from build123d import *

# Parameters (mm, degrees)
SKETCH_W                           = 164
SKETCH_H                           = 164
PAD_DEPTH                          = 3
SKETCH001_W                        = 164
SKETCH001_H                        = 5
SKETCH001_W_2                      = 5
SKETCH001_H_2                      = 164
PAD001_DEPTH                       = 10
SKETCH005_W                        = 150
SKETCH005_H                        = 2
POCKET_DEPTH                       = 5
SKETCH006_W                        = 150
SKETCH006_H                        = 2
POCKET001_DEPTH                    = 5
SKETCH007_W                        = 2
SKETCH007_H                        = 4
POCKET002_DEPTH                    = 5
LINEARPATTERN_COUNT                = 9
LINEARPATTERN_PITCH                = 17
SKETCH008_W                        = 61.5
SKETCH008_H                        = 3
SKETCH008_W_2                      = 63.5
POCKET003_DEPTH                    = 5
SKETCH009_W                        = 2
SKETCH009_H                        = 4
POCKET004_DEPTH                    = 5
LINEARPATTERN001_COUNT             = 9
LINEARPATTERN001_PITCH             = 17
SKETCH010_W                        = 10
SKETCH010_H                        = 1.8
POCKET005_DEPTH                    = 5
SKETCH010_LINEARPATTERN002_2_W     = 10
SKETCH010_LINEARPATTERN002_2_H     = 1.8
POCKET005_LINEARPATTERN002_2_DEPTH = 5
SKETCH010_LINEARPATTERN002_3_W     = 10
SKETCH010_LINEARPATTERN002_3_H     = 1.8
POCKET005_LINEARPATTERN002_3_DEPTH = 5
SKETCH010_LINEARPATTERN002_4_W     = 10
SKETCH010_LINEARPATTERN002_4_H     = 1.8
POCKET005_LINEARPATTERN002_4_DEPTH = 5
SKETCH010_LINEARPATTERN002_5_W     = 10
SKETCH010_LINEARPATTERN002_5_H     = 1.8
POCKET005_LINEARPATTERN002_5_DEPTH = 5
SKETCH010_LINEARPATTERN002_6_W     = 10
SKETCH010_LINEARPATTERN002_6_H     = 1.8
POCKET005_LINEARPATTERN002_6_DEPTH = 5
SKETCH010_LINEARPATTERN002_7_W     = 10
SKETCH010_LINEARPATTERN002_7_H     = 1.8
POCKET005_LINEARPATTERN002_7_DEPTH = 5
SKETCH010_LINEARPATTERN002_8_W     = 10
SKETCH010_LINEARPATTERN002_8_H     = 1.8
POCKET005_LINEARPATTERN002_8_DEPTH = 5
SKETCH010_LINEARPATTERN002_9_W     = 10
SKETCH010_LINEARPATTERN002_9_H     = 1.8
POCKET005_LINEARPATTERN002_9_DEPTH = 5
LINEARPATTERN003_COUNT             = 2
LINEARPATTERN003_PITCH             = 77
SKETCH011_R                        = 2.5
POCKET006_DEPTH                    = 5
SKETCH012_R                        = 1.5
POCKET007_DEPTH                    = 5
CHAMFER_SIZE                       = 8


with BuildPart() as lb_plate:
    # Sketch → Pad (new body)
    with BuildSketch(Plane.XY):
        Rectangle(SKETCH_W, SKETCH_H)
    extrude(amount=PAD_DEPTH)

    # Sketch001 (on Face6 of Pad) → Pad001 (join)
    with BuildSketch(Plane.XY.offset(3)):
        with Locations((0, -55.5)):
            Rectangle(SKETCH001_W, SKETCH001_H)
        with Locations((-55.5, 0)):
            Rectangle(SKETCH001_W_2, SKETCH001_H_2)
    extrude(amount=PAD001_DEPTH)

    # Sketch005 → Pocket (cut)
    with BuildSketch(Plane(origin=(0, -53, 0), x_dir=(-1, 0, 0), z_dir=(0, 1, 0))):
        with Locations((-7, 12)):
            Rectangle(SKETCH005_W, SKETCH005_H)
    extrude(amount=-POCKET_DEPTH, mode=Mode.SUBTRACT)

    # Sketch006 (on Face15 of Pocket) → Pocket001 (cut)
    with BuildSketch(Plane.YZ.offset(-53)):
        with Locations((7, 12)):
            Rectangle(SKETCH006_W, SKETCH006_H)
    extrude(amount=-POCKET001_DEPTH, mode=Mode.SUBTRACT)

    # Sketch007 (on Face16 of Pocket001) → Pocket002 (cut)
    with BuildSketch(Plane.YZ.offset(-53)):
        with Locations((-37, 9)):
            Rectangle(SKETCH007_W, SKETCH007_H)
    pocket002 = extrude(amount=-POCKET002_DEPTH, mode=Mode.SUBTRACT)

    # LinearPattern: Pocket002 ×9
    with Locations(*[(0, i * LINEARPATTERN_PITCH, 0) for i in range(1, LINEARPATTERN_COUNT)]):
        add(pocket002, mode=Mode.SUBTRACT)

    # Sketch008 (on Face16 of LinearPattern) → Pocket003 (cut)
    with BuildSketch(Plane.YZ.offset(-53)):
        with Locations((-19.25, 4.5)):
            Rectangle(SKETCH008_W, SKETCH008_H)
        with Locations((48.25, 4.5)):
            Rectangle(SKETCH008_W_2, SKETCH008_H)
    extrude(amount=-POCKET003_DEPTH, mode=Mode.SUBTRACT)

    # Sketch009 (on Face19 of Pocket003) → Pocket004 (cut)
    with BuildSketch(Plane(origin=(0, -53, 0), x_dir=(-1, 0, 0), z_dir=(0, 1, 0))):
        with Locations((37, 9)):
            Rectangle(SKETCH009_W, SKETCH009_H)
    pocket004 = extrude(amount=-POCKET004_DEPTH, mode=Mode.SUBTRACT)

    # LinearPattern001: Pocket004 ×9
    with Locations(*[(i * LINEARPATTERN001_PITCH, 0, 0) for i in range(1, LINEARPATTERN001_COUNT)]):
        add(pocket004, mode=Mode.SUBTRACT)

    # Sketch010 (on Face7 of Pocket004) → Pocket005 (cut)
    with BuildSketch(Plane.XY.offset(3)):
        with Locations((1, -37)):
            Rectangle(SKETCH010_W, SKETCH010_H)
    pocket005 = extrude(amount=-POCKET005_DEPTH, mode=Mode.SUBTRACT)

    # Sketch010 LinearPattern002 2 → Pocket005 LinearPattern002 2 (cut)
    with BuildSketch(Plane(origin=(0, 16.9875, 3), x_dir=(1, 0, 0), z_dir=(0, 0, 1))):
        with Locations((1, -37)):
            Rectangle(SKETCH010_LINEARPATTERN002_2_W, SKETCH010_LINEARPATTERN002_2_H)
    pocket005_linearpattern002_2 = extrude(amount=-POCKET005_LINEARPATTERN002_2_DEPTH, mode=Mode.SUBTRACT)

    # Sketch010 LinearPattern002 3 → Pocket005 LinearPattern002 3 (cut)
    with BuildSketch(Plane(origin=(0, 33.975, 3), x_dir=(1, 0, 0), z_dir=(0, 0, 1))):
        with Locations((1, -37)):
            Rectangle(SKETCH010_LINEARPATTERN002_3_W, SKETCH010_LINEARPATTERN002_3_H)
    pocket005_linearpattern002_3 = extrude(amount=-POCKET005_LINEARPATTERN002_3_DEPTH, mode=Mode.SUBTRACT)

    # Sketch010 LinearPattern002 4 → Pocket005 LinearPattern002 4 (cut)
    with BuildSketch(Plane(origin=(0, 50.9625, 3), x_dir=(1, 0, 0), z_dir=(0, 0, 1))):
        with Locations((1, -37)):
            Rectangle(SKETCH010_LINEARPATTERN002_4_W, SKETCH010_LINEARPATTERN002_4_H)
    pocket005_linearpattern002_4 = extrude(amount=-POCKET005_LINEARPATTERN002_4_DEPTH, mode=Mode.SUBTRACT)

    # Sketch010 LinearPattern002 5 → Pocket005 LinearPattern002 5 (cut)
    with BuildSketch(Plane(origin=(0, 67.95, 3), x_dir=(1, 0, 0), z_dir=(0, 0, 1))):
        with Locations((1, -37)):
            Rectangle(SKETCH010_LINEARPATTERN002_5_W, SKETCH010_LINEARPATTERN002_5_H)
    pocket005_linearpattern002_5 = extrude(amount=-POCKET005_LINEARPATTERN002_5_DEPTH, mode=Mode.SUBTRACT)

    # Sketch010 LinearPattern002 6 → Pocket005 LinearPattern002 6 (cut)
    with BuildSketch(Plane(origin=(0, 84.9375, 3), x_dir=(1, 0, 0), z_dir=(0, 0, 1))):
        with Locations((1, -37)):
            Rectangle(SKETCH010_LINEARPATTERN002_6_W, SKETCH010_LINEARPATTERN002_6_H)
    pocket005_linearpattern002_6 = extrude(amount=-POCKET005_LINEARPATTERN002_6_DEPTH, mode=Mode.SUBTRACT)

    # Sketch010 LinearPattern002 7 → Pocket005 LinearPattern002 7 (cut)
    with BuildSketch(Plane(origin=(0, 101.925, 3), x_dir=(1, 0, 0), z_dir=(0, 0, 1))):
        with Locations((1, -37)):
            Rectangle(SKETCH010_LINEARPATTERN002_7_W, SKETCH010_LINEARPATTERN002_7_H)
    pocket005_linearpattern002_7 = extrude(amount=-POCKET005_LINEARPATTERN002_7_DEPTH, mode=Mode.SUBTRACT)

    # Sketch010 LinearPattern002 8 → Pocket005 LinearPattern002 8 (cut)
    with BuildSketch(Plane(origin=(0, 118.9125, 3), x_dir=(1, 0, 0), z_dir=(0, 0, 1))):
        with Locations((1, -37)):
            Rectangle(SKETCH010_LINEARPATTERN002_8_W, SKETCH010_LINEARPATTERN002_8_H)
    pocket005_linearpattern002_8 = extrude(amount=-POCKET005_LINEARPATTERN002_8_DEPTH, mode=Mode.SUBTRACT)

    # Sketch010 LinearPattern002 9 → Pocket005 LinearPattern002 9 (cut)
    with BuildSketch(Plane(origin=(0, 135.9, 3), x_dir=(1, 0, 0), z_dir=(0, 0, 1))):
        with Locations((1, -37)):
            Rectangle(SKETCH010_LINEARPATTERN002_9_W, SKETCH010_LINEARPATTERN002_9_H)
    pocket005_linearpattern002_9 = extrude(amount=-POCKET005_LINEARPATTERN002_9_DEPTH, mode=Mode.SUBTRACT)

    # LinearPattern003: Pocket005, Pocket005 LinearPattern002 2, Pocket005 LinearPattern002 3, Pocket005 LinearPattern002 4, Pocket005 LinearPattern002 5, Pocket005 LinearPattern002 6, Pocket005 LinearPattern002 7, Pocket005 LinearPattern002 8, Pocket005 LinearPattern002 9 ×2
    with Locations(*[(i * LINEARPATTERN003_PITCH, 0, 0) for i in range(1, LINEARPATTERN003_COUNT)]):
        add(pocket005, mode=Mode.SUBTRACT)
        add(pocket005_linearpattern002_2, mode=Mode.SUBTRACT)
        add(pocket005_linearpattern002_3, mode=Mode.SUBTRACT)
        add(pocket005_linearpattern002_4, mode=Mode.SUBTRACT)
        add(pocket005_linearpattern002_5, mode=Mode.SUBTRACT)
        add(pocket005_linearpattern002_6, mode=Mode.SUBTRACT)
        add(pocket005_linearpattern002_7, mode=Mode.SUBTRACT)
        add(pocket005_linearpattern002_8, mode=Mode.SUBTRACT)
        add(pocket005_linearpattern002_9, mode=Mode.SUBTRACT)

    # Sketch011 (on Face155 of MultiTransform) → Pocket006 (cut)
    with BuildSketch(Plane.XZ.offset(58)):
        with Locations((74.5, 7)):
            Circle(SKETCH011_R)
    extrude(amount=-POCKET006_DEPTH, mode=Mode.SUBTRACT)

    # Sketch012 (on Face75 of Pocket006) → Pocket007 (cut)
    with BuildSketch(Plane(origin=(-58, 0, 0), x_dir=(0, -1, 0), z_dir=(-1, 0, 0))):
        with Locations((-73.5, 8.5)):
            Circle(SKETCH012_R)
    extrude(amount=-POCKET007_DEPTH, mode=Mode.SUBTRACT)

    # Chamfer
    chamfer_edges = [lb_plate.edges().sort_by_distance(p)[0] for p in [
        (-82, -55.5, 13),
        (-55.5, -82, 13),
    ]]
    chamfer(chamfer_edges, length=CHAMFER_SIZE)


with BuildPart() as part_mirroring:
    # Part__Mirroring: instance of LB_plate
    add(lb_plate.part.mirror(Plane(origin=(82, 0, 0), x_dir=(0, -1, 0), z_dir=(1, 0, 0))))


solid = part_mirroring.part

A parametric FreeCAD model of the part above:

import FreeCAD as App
import Part
import Sketcher
from FreeCAD import Vector
Q = App.Units.Quantity


def edges_at(feature, points):
    """Names of the edges that pass closest to the given points."""
    edges = feature.Shape.Edges
    near = lambda p: min(range(len(edges)), key=lambda i: edges[i].distToShape(Part.Vertex(*p))[0])
    return sorted({f"Edge{near(p) + 1}" for p in points})

doc = App.newDocument("Part")
body = doc.addObject("PartDesign::Body", "Body")

sketch1 = doc.addObject("Sketcher::SketchObject", "Sketch")
body.addObject(sketch1)
sketch1.AttachmentSupport = (doc.XY_Plane, [""])
sketch1.MapMode = "FlatFace"
sketch1.addGeometry(Part.LineSegment(Vector(-82, 82, 0), Vector(-82, -82, 0)), False)
sketch1.addGeometry(Part.LineSegment(Vector(-82, -82, 0), Vector(82, -82, 0)), False)
sketch1.addGeometry(Part.LineSegment(Vector(82, -82, 0), Vector(82, 82, 0)), False)
sketch1.addGeometry(Part.LineSegment(Vector(82, 82, 0), Vector(-82, 82, 0)), False)
sketch1.addConstraint(Sketcher.Constraint("Coincident", 0, 2, 1, 1))
sketch1.addConstraint(Sketcher.Constraint("Coincident", 1, 2, 2, 1))
sketch1.addConstraint(Sketcher.Constraint("Coincident", 2, 2, 3, 1))
sketch1.addConstraint(Sketcher.Constraint("Coincident", 3, 2, 0, 1))
sketch1.addConstraint(Sketcher.Constraint("Vertical", 0))
sketch1.addConstraint(Sketcher.Constraint("Horizontal", 1))
sketch1.addConstraint(Sketcher.Constraint("Vertical", 2))
sketch1.addConstraint(Sketcher.Constraint("Horizontal", 3))
sketch1.addConstraint(Sketcher.Constraint("Symmetric", 0, 2, 2, 2, -1, 1))
sketch1.addConstraint(Sketcher.Constraint("Equal", 3, 0))
sketch1.addConstraint(Sketcher.Constraint("DistanceX", 1, 1, 1, 2, Q("164 mm")))
pad1 = doc.addObject("PartDesign::Pad", "Pad")
body.addObject(pad1)
pad1.Profile = sketch1
pad1.Length = 3

sketch2 = doc.addObject("Sketcher::SketchObject", "Sketch001")
body.addObject(sketch2)
sketch2.AttachmentSupport = (doc.XY_Plane, [""])
sketch2.MapMode = "FlatFace"
sketch2.AttachmentOffset = App.Placement(Vector(0, 0, 3), App.Rotation())
sketch2.addGeometry(Part.LineSegment(Vector(-82, -53, 0), Vector(-82, -58, 0)), False)
sketch2.addGeometry(Part.LineSegment(Vector(-82, -58, 0), Vector(-58, -58, 0)), False)
sketch2.addGeometry(Part.LineSegment(Vector(-58, -58, 0), Vector(-58, -82, 0)), False)
sketch2.addGeometry(Part.LineSegment(Vector(-58, -82, 0), Vector(-53, -82, 0)), False)
sketch2.addGeometry(Part.LineSegment(Vector(-53, -82, 0), Vector(-53, -58, 0)), False)
sketch2.addGeometry(Part.LineSegment(Vector(-53, -58, 0), Vector(82, -58, 0)), False)
sketch2.addGeometry(Part.LineSegment(Vector(82, -58, 0), Vector(82, -53, 0)), False)
sketch2.addGeometry(Part.LineSegment(Vector(82, -53, 0), Vector(-53, -53, 0)), False)
sketch2.addGeometry(Part.LineSegment(Vector(-53, -53, 0), Vector(-53, 82, 0)), False)
sketch2.addGeometry(Part.LineSegment(Vector(-53, 82, 0), Vector(-58, 82, 0)), False)
sketch2.addGeometry(Part.LineSegment(Vector(-58, 82, 0), Vector(-58, -53, 0)), False)
sketch2.addGeometry(Part.LineSegment(Vector(-58, -53, 0), Vector(-82, -53, 0)), False)
sketch2.addConstraint(Sketcher.Constraint("Coincident", 0, 2, 1, 1))
sketch2.addConstraint(Sketcher.Constraint("Coincident", 1, 2, 2, 1))
sketch2.addConstraint(Sketcher.Constraint("Coincident", 2, 2, 3, 1))
sketch2.addConstraint(Sketcher.Constraint("Coincident", 3, 2, 4, 1))
sketch2.addConstraint(Sketcher.Constraint("Coincident", 4, 2, 5, 1))
sketch2.addConstraint(Sketcher.Constraint("Coincident", 5, 2, 6, 1))
sketch2.addConstraint(Sketcher.Constraint("Coincident", 6, 2, 7, 1))
sketch2.addConstraint(Sketcher.Constraint("Coincident", 7, 2, 8, 1))
sketch2.addConstraint(Sketcher.Constraint("Coincident", 8, 2, 9, 1))
sketch2.addConstraint(Sketcher.Constraint("Coincident", 9, 2, 10, 1))
sketch2.addConstraint(Sketcher.Constraint("Coincident", 10, 2, 11, 1))
sketch2.addConstraint(Sketcher.Constraint("Coincident", 11, 2, 0, 1))
sketch2.addConstraint(Sketcher.Constraint("Vertical", 0))
sketch2.addConstraint(Sketcher.Constraint("Horizontal", 1))
sketch2.addConstraint(Sketcher.Constraint("Vertical", 2))
sketch2.addConstraint(Sketcher.Constraint("Horizontal", 3))
sketch2.addConstraint(Sketcher.Constraint("Vertical", 4))
sketch2.addConstraint(Sketcher.Constraint("Horizontal", 5))
sketch2.addConstraint(Sketcher.Constraint("Vertical", 6))
sketch2.addConstraint(Sketcher.Constraint("Horizontal", 7))
sketch2.addConstraint(Sketcher.Constraint("Vertical", 8))
sketch2.addConstraint(Sketcher.Constraint("Horizontal", 9))
sketch2.addConstraint(Sketcher.Constraint("Vertical", 10))
sketch2.addConstraint(Sketcher.Constraint("Horizontal", 11))
sketch2.addConstraint(Sketcher.Constraint("Symmetric", 0, 2, 5, 2, -2))
sketch2.addConstraint(Sketcher.Constraint("Symmetric", 3, 2, 8, 2, -1))
sketch2.addConstraint(Sketcher.Constraint("Horizontal", 7, 2, 10, 2))
sketch2.addConstraint(Sketcher.Constraint("Vertical", 2, 2, 9, 2))
sketch2.addConstraint(Sketcher.Constraint("Equal", 9, 0))
sketch2.addConstraint(Sketcher.Constraint("Equal", 11, 2))
sketch2.addConstraint(Sketcher.Constraint("Equal", 7, 8))
sketch2.addConstraint(Sketcher.Constraint("DistanceX", 1, 1, 1, 2, Q("24 mm")))
sketch2.addConstraint(Sketcher.Constraint("DistanceX", 3, 1, 3, 2, Q("5 mm")))
sketch2.addConstraint(Sketcher.Constraint("DistanceX", 5, 1, 5, 2, Q("135 mm")))
pad2 = doc.addObject("PartDesign::Pad", "Pad001")
body.addObject(pad2)
pad2.Profile = sketch2
pad2.Length = 10

sketch3 = doc.addObject("Sketcher::SketchObject", "Sketch002")
body.addObject(sketch3)
sketch3.AttachmentSupport = (doc.XZ_Plane, [""])
sketch3.MapMode = "FlatFace"
sketch3.AttachmentOffset = App.Placement(Vector(0, 0, 53), App.Rotation())
sketch3.addGeometry(Part.LineSegment(Vector(82, 13, 0), Vector(82, 11, 0)), False)
sketch3.addGeometry(Part.LineSegment(Vector(82, 11, 0), Vector(-68, 11, 0)), False)
sketch3.addGeometry(Part.LineSegment(Vector(-68, 11, 0), Vector(-68, 13, 0)), False)
sketch3.addGeometry(Part.LineSegment(Vector(-68, 13, 0), Vector(82, 13, 0)), False)
sketch3.addConstraint(Sketcher.Constraint("Coincident", 0, 2, 1, 1))
sketch3.addConstraint(Sketcher.Constraint("Coincident", 1, 2, 2, 1))
sketch3.addConstraint(Sketcher.Constraint("Coincident", 2, 2, 3, 1))
sketch3.addConstraint(Sketcher.Constraint("Coincident", 3, 2, 0, 1))
sketch3.addConstraint(Sketcher.Constraint("Vertical", 0))
sketch3.addConstraint(Sketcher.Constraint("Horizontal", 1))
sketch3.addConstraint(Sketcher.Constraint("Vertical", 2))
sketch3.addConstraint(Sketcher.Constraint("Horizontal", 3))
sketch3.addConstraint(Sketcher.Constraint("DistanceX", 1, 2, 1, 1, Q("150 mm")))
sketch3.addConstraint(Sketcher.Constraint("DistanceY", 0, 2, 0, 1, Q("2 mm")))
sketch3.addConstraint(Sketcher.Constraint("DistanceX", -1, 1, 0, 2, Q("82 mm")))
sketch3.addConstraint(Sketcher.Constraint("DistanceY", -1, 1, 0, 2, Q("11 mm")))
pocket1 = doc.addObject("PartDesign::Pocket", "Pocket")
body.addObject(pocket1)
pocket1.Profile = sketch3
pocket1.Length = 5
pocket1.Reversed = True

sketch4 = doc.addObject("Sketcher::SketchObject", "Sketch003")
body.addObject(sketch4)
sketch4.AttachmentSupport = (doc.YZ_Plane, [""])
sketch4.MapMode = "FlatFace"
sketch4.AttachmentOffset = App.Placement(Vector(0, 0, -53), App.Rotation())
sketch4.addGeometry(Part.LineSegment(Vector(-68, 13, 0), Vector(-68, 11, 0)), False)
sketch4.addGeometry(Part.LineSegment(Vector(-68, 11, 0), Vector(82, 11, 0)), False)
sketch4.addGeometry(Part.LineSegment(Vector(82, 11, 0), Vector(82, 13, 0)), False)
sketch4.addGeometry(Part.LineSegment(Vector(82, 13, 0), Vector(-68, 13, 0)), False)
sketch4.addConstraint(Sketcher.Constraint("Coincident", 0, 2, 1, 1))
sketch4.addConstraint(Sketcher.Constraint("Coincident", 1, 2, 2, 1))
sketch4.addConstraint(Sketcher.Constraint("Coincident", 2, 2, 3, 1))
sketch4.addConstraint(Sketcher.Constraint("Coincident", 3, 2, 0, 1))
sketch4.addConstraint(Sketcher.Constraint("Vertical", 0))
sketch4.addConstraint(Sketcher.Constraint("Horizontal", 1))
sketch4.addConstraint(Sketcher.Constraint("Vertical", 2))
sketch4.addConstraint(Sketcher.Constraint("Horizontal", 3))
sketch4.addConstraint(Sketcher.Constraint("DistanceX", 1, 1, 1, 2, Q("150 mm")))
sketch4.addConstraint(Sketcher.Constraint("DistanceY", 0, 2, 0, 1, Q("2 mm")))
sketch4.addConstraint(Sketcher.Constraint("DistanceX", 0, 2, -1, 1, Q("68 mm")))
sketch4.addConstraint(Sketcher.Constraint("DistanceY", -1, 1, 0, 2, Q("11 mm")))
pocket2 = doc.addObject("PartDesign::Pocket", "Pocket001")
body.addObject(pocket2)
pocket2.Profile = sketch4
pocket2.Length = 5

sketch5 = doc.addObject("Sketcher::SketchObject", "Sketch004")
body.addObject(sketch5)
sketch5.AttachmentSupport = (doc.YZ_Plane, [""])
sketch5.MapMode = "FlatFace"
sketch5.AttachmentOffset = App.Placement(Vector(0, 0, -53), App.Rotation())
sketch5.addGeometry(Part.LineSegment(Vector(-38, 11, 0), Vector(-38, 7, 0)), False)
sketch5.addGeometry(Part.LineSegment(Vector(-38, 7, 0), Vector(-36, 7, 0)), False)
sketch5.addGeometry(Part.LineSegment(Vector(-36, 7, 0), Vector(-36, 11, 0)), False)
sketch5.addGeometry(Part.LineSegment(Vector(-36, 11, 0), Vector(-38, 11, 0)), False)
sketch5.addConstraint(Sketcher.Constraint("Coincident", 0, 2, 1, 1))
sketch5.addConstraint(Sketcher.Constraint("Coincident", 1, 2, 2, 1))
sketch5.addConstraint(Sketcher.Constraint("Coincident", 2, 2, 3, 1))
sketch5.addConstraint(Sketcher.Constraint("Coincident", 3, 2, 0, 1))
sketch5.addConstraint(Sketcher.Constraint("Vertical", 0))
sketch5.addConstraint(Sketcher.Constraint("Horizontal", 1))
sketch5.addConstraint(Sketcher.Constraint("Vertical", 2))
sketch5.addConstraint(Sketcher.Constraint("Horizontal", 3))
sketch5.addConstraint(Sketcher.Constraint("DistanceX", 1, 1, 1, 2, Q("2 mm")))
sketch5.addConstraint(Sketcher.Constraint("DistanceY", 0, 2, 0, 1, Q("4 mm")))
sketch5.addConstraint(Sketcher.Constraint("DistanceX", 0, 2, -1, 1, Q("38 mm")))
sketch5.addConstraint(Sketcher.Constraint("DistanceY", -1, 1, 0, 2, Q("7 mm")))
pocket3 = doc.addObject("PartDesign::Pocket", "Pocket002")
body.addObject(pocket3)
pocket3.Profile = sketch5
pocket3.Length = 5
doc.recompute()

linearpattern = doc.addObject("PartDesign::LinearPattern", "LinearPattern")
body.addObject(linearpattern)
linearpattern.Originals = [pocket3]
linearpattern.Direction = (doc.Y_Axis, [""])
linearpattern.Mode = "offset"
linearpattern.Offset = 17
linearpattern.Occurrences = 9
body.Tip = linearpattern

sketch6 = doc.addObject("Sketcher::SketchObject", "Sketch005")
body.addObject(sketch6)
sketch6.AttachmentSupport = (doc.YZ_Plane, [""])
sketch6.MapMode = "FlatFace"
sketch6.AttachmentOffset = App.Placement(Vector(0, 0, -53), App.Rotation())
sketch6.addGeometry(Part.LineSegment(Vector(-50, 6, 0), Vector(-50, 3, 0)), False)
sketch6.addGeometry(Part.LineSegment(Vector(-50, 3, 0), Vector(11.5, 3, 0)), False)
sketch6.addGeometry(Part.LineSegment(Vector(11.5, 3, 0), Vector(11.5, 6, 0)), False)
sketch6.addGeometry(Part.LineSegment(Vector(11.5, 6, 0), Vector(-50, 6, 0)), False)
sketch6.addGeometry(Part.LineSegment(Vector(16.5, 6, 0), Vector(16.5, 3, 0)), False)
sketch6.addGeometry(Part.LineSegment(Vector(16.5, 3, 0), Vector(80, 3, 0)), False)
sketch6.addGeometry(Part.LineSegment(Vector(80, 3, 0), Vector(80, 6, 0)), False)
sketch6.addGeometry(Part.LineSegment(Vector(80, 6, 0), Vector(16.5, 6, 0)), False)
sketch6.addConstraint(Sketcher.Constraint("Coincident", 0, 2, 1, 1))
sketch6.addConstraint(Sketcher.Constraint("Coincident", 1, 2, 2, 1))
sketch6.addConstraint(Sketcher.Constraint("Coincident", 2, 2, 3, 1))
sketch6.addConstraint(Sketcher.Constraint("Coincident", 3, 2, 0, 1))
sketch6.addConstraint(Sketcher.Constraint("Coincident", 4, 2, 5, 1))
sketch6.addConstraint(Sketcher.Constraint("Coincident", 5, 2, 6, 1))
sketch6.addConstraint(Sketcher.Constraint("Coincident", 6, 2, 7, 1))
sketch6.addConstraint(Sketcher.Constraint("Coincident", 7, 2, 4, 1))
sketch6.addConstraint(Sketcher.Constraint("Vertical", 0))
sketch6.addConstraint(Sketcher.Constraint("Horizontal", 1))
sketch6.addConstraint(Sketcher.Constraint("Vertical", 2))
sketch6.addConstraint(Sketcher.Constraint("Horizontal", 3))
sketch6.addConstraint(Sketcher.Constraint("Vertical", 4))
sketch6.addConstraint(Sketcher.Constraint("Horizontal", 5))
sketch6.addConstraint(Sketcher.Constraint("Vertical", 6))
sketch6.addConstraint(Sketcher.Constraint("Horizontal", 7))
sketch6.addConstraint(Sketcher.Constraint("Horizontal", 1, 2, 4, 2))
sketch6.addConstraint(Sketcher.Constraint("Horizontal", 3, 2, 6, 2))
sketch6.addConstraint(Sketcher.Constraint("DistanceY", 0, 2, 0, 1, Q("3 mm")))
sketch6.addConstraint(Sketcher.Constraint("DistanceX", 1, 1, 1, 2, Q("61.5 mm")))
sketch6.addConstraint(Sketcher.Constraint("DistanceX", 5, 1, 5, 2, Q("63.5 mm")))
sketch6.addConstraint(Sketcher.Constraint("DistanceX", 0, 2, -1, 1, Q("50 mm")))
sketch6.addConstraint(Sketcher.Constraint("DistanceY", -1, 1, 0, 2, Q("3 mm")))
sketch6.addConstraint(Sketcher.Constraint("DistanceX", -1, 1, 5, 2, Q("80 mm")))
pocket4 = doc.addObject("PartDesign::Pocket", "Pocket003")
body.addObject(pocket4)
pocket4.Profile = sketch6
pocket4.Length = 5

sketch7 = doc.addObject("Sketcher::SketchObject", "Sketch006")
body.addObject(sketch7)
sketch7.AttachmentSupport = (doc.XZ_Plane, [""])
sketch7.MapMode = "FlatFace"
sketch7.AttachmentOffset = App.Placement(Vector(0, 0, 53), App.Rotation())
sketch7.addGeometry(Part.LineSegment(Vector(-36, 11, 0), Vector(-36, 7, 0)), False)
sketch7.addGeometry(Part.LineSegment(Vector(-36, 7, 0), Vector(-38, 7, 0)), False)
sketch7.addGeometry(Part.LineSegment(Vector(-38, 7, 0), Vector(-38, 11, 0)), False)
sketch7.addGeometry(Part.LineSegment(Vector(-38, 11, 0), Vector(-36, 11, 0)), False)
sketch7.addConstraint(Sketcher.Constraint("Coincident", 0, 2, 1, 1))
sketch7.addConstraint(Sketcher.Constraint("Coincident", 1, 2, 2, 1))
sketch7.addConstraint(Sketcher.Constraint("Coincident", 2, 2, 3, 1))
sketch7.addConstraint(Sketcher.Constraint("Coincident", 3, 2, 0, 1))
sketch7.addConstraint(Sketcher.Constraint("Vertical", 0))
sketch7.addConstraint(Sketcher.Constraint("Horizontal", 1))
sketch7.addConstraint(Sketcher.Constraint("Vertical", 2))
sketch7.addConstraint(Sketcher.Constraint("Horizontal", 3))
sketch7.addConstraint(Sketcher.Constraint("DistanceX", 1, 2, 1, 1, Q("2 mm")))
sketch7.addConstraint(Sketcher.Constraint("DistanceY", 0, 2, 0, 1, Q("4 mm")))
sketch7.addConstraint(Sketcher.Constraint("DistanceX", 0, 2, -1, 1, Q("36 mm")))
sketch7.addConstraint(Sketcher.Constraint("DistanceY", -1, 1, 0, 2, Q("7 mm")))
pocket5 = doc.addObject("PartDesign::Pocket", "Pocket004")
body.addObject(pocket5)
pocket5.Profile = sketch7
pocket5.Length = 5
pocket5.Reversed = True
doc.recompute()

linearpattern2 = doc.addObject("PartDesign::LinearPattern", "LinearPattern001")
body.addObject(linearpattern2)
linearpattern2.Originals = [pocket5]
linearpattern2.Direction = (doc.X_Axis, [""])
linearpattern2.Mode = "offset"
linearpattern2.Offset = 17
linearpattern2.Occurrences = 9
body.Tip = linearpattern2

sketch8 = doc.addObject("Sketcher::SketchObject", "Sketch007")
body.addObject(sketch8)
sketch8.AttachmentSupport = (doc.XY_Plane, [""])
sketch8.MapMode = "FlatFace"
sketch8.AttachmentOffset = App.Placement(Vector(0, 0, 3), App.Rotation())
sketch8.addGeometry(Part.LineSegment(Vector(-4, -36.1, 0), Vector(-4, -37.9, 0)), False)
sketch8.addGeometry(Part.LineSegment(Vector(-4, -37.9, 0), Vector(6, -37.9, 0)), False)
sketch8.addGeometry(Part.LineSegment(Vector(6, -37.9, 0), Vector(6, -36.1, 0)), False)
sketch8.addGeometry(Part.LineSegment(Vector(6, -36.1, 0), Vector(-4, -36.1, 0)), False)
sketch8.addConstraint(Sketcher.Constraint("Coincident", 0, 2, 1, 1))
sketch8.addConstraint(Sketcher.Constraint("Coincident", 1, 2, 2, 1))
sketch8.addConstraint(Sketcher.Constraint("Coincident", 2, 2, 3, 1))
sketch8.addConstraint(Sketcher.Constraint("Coincident", 3, 2, 0, 1))
sketch8.addConstraint(Sketcher.Constraint("Vertical", 0))
sketch8.addConstraint(Sketcher.Constraint("Horizontal", 1))
sketch8.addConstraint(Sketcher.Constraint("Vertical", 2))
sketch8.addConstraint(Sketcher.Constraint("Horizontal", 3))
sketch8.addConstraint(Sketcher.Constraint("DistanceX", 1, 1, 1, 2, Q("10 mm")))
sketch8.addConstraint(Sketcher.Constraint("DistanceY", 0, 2, 0, 1, Q("1.8 mm")))
sketch8.addConstraint(Sketcher.Constraint("DistanceX", 0, 2, -1, 1, Q("4 mm")))
sketch8.addConstraint(Sketcher.Constraint("DistanceY", 0, 2, -1, 1, Q("37.9 mm")))
pocket6 = doc.addObject("PartDesign::Pocket", "Pocket005")
body.addObject(pocket6)
pocket6.Profile = sketch8
pocket6.Length = 5

sketch9 = doc.addObject("Sketcher::SketchObject", "Sketch008")
body.addObject(sketch9)
sketch9.AttachmentSupport = (doc.XY_Plane, [""])
sketch9.MapMode = "FlatFace"
sketch9.AttachmentOffset = App.Placement(Vector(0, 0, 3), App.Rotation())
sketch9.addGeometry(Part.LineSegment(Vector(-4, -19.1, 0), Vector(-4, -20.9, 0)), False)
sketch9.addGeometry(Part.LineSegment(Vector(-4, -20.9, 0), Vector(6, -20.9, 0)), False)
sketch9.addGeometry(Part.LineSegment(Vector(6, -20.9, 0), Vector(6, -19.1, 0)), False)
sketch9.addGeometry(Part.LineSegment(Vector(6, -19.1, 0), Vector(-4, -19.1, 0)), False)
sketch9.addConstraint(Sketcher.Constraint("Coincident", 0, 2, 1, 1))
sketch9.addConstraint(Sketcher.Constraint("Coincident", 1, 2, 2, 1))
sketch9.addConstraint(Sketcher.Constraint("Coincident", 2, 2, 3, 1))
sketch9.addConstraint(Sketcher.Constraint("Coincident", 3, 2, 0, 1))
sketch9.addConstraint(Sketcher.Constraint("Vertical", 0))
sketch9.addConstraint(Sketcher.Constraint("Horizontal", 1))
sketch9.addConstraint(Sketcher.Constraint("Vertical", 2))
sketch9.addConstraint(Sketcher.Constraint("Horizontal", 3))
sketch9.addConstraint(Sketcher.Constraint("DistanceX", 1, 1, 1, 2, Q("10 mm")))
sketch9.addConstraint(Sketcher.Constraint("DistanceY", 0, 2, 0, 1, Q("1.8 mm")))
sketch9.addConstraint(Sketcher.Constraint("DistanceX", 0, 2, -1, 1, Q("4 mm")))
sketch9.addConstraint(Sketcher.Constraint("DistanceY", 0, 2, -1, 1, Q("20.9125 mm")))
pocket7 = doc.addObject("PartDesign::Pocket", "Pocket006")
body.addObject(pocket7)
pocket7.Profile = sketch9
pocket7.Length = 5

sketch10 = doc.addObject("Sketcher::SketchObject", "Sketch009")
body.addObject(sketch10)
sketch10.AttachmentSupport = (doc.XY_Plane, [""])
sketch10.MapMode = "FlatFace"
sketch10.AttachmentOffset = App.Placement(Vector(0, 0, 3), App.Rotation())
sketch10.addGeometry(Part.LineSegment(Vector(-4, -2.1, 0), Vector(-4, -3.9, 0)), False)
sketch10.addGeometry(Part.LineSegment(Vector(-4, -3.9, 0), Vector(6, -3.9, 0)), False)
sketch10.addGeometry(Part.LineSegment(Vector(6, -3.9, 0), Vector(6, -2.1, 0)), False)
sketch10.addGeometry(Part.LineSegment(Vector(6, -2.1, 0), Vector(-4, -2.1, 0)), False)
sketch10.addConstraint(Sketcher.Constraint("Coincident", 0, 2, 1, 1))
sketch10.addConstraint(Sketcher.Constraint("Coincident", 1, 2, 2, 1))
sketch10.addConstraint(Sketcher.Constraint("Coincident", 2, 2, 3, 1))
sketch10.addConstraint(Sketcher.Constraint("Coincident", 3, 2, 0, 1))
sketch10.addConstraint(Sketcher.Constraint("Vertical", 0))
sketch10.addConstraint(Sketcher.Constraint("Horizontal", 1))
sketch10.addConstraint(Sketcher.Constraint("Vertical", 2))
sketch10.addConstraint(Sketcher.Constraint("Horizontal", 3))
sketch10.addConstraint(Sketcher.Constraint("DistanceX", 1, 1, 1, 2, Q("10 mm")))
sketch10.addConstraint(Sketcher.Constraint("DistanceY", 0, 2, 0, 1, Q("1.8 mm")))
sketch10.addConstraint(Sketcher.Constraint("DistanceX", 0, 2, -1, 1, Q("4 mm")))
sketch10.addConstraint(Sketcher.Constraint("DistanceY", 0, 2, -1, 1, Q("3.925 mm")))
pocket8 = doc.addObject("PartDesign::Pocket", "Pocket007")
body.addObject(pocket8)
pocket8.Profile = sketch10
pocket8.Length = 5

sketch11 = doc.addObject("Sketcher::SketchObject", "Sketch010")
body.addObject(sketch11)
sketch11.AttachmentSupport = (doc.XY_Plane, [""])
sketch11.MapMode = "FlatFace"
sketch11.AttachmentOffset = App.Placement(Vector(0, 0, 3), App.Rotation())
sketch11.addGeometry(Part.LineSegment(Vector(-4, 14.9, 0), Vector(-4, 13.1, 0)), False)
sketch11.addGeometry(Part.LineSegment(Vector(-4, 13.1, 0), Vector(6, 13.1, 0)), False)
sketch11.addGeometry(Part.LineSegment(Vector(6, 13.1, 0), Vector(6, 14.9, 0)), False)
sketch11.addGeometry(Part.LineSegment(Vector(6, 14.9, 0), Vector(-4, 14.9, 0)), False)
sketch11.addConstraint(Sketcher.Constraint("Coincident", 0, 2, 1, 1))
sketch11.addConstraint(Sketcher.Constraint("Coincident", 1, 2, 2, 1))
sketch11.addConstraint(Sketcher.Constraint("Coincident", 2, 2, 3, 1))
sketch11.addConstraint(Sketcher.Constraint("Coincident", 3, 2, 0, 1))
sketch11.addConstraint(Sketcher.Constraint("Vertical", 0))
sketch11.addConstraint(Sketcher.Constraint("Horizontal", 1))
sketch11.addConstraint(Sketcher.Constraint("Vertical", 2))
sketch11.addConstraint(Sketcher.Constraint("Horizontal", 3))
sketch11.addConstraint(Sketcher.Constraint("DistanceX", 1, 1, 1, 2, Q("10 mm")))
sketch11.addConstraint(Sketcher.Constraint("DistanceY", 0, 2, 0, 1, Q("1.8 mm")))
sketch11.addConstraint(Sketcher.Constraint("DistanceX", 0, 2, -1, 1, Q("4 mm")))
sketch11.addConstraint(Sketcher.Constraint("DistanceY", -1, 1, 0, 2, Q("13.0625 mm")))
pocket9 = doc.addObject("PartDesign::Pocket", "Pocket008")
body.addObject(pocket9)
pocket9.Profile = sketch11
pocket9.Length = 5

sketch12 = doc.addObject("Sketcher::SketchObject", "Sketch011")
body.addObject(sketch12)
sketch12.AttachmentSupport = (doc.XY_Plane, [""])
sketch12.MapMode = "FlatFace"
sketch12.AttachmentOffset = App.Placement(Vector(0, 0, 3), App.Rotation())
sketch12.addGeometry(Part.LineSegment(Vector(-4, 31.9, 0), Vector(-4, 30.1, 0)), False)
sketch12.addGeometry(Part.LineSegment(Vector(-4, 30.1, 0), Vector(6, 30.1, 0)), False)
sketch12.addGeometry(Part.LineSegment(Vector(6, 30.1, 0), Vector(6, 31.9, 0)), False)
sketch12.addGeometry(Part.LineSegment(Vector(6, 31.9, 0), Vector(-4, 31.9, 0)), False)
sketch12.addConstraint(Sketcher.Constraint("Coincident", 0, 2, 1, 1))
sketch12.addConstraint(Sketcher.Constraint("Coincident", 1, 2, 2, 1))
sketch12.addConstraint(Sketcher.Constraint("Coincident", 2, 2, 3, 1))
sketch12.addConstraint(Sketcher.Constraint("Coincident", 3, 2, 0, 1))
sketch12.addConstraint(Sketcher.Constraint("Vertical", 0))
sketch12.addConstraint(Sketcher.Constraint("Horizontal", 1))
sketch12.addConstraint(Sketcher.Constraint("Vertical", 2))
sketch12.addConstraint(Sketcher.Constraint("Horizontal", 3))
sketch12.addConstraint(Sketcher.Constraint("DistanceX", 1, 1, 1, 2, Q("10 mm")))
sketch12.addConstraint(Sketcher.Constraint("DistanceY", 0, 2, 0, 1, Q("1.8 mm")))
sketch12.addConstraint(Sketcher.Constraint("DistanceX", 0, 2, -1, 1, Q("4 mm")))
sketch12.addConstraint(Sketcher.Constraint("DistanceY", -1, 1, 0, 2, Q("30.05 mm")))
pocket10 = doc.addObject("PartDesign::Pocket", "Pocket009")
body.addObject(pocket10)
pocket10.Profile = sketch12
pocket10.Length = 5

sketch13 = doc.addObject("Sketcher::SketchObject", "Sketch012")
body.addObject(sketch13)
sketch13.AttachmentSupport = (doc.XY_Plane, [""])
sketch13.MapMode = "FlatFace"
sketch13.AttachmentOffset = App.Placement(Vector(0, 0, 3), App.Rotation())
sketch13.addGeometry(Part.LineSegment(Vector(-4, 48.8, 0), Vector(-4, 47, 0)), False)
sketch13.addGeometry(Part.LineSegment(Vector(-4, 47, 0), Vector(6, 47, 0)), False)
sketch13.addGeometry(Part.LineSegment(Vector(6, 47, 0), Vector(6, 48.8, 0)), False)
sketch13.addGeometry(Part.LineSegment(Vector(6, 48.8, 0), Vector(-4, 48.8, 0)), False)
sketch13.addConstraint(Sketcher.Constraint("Coincident", 0, 2, 1, 1))
sketch13.addConstraint(Sketcher.Constraint("Coincident", 1, 2, 2, 1))
sketch13.addConstraint(Sketcher.Constraint("Coincident", 2, 2, 3, 1))
sketch13.addConstraint(Sketcher.Constraint("Coincident", 3, 2, 0, 1))
sketch13.addConstraint(Sketcher.Constraint("Vertical", 0))
sketch13.addConstraint(Sketcher.Constraint("Horizontal", 1))
sketch13.addConstraint(Sketcher.Constraint("Vertical", 2))
sketch13.addConstraint(Sketcher.Constraint("Horizontal", 3))
sketch13.addConstraint(Sketcher.Constraint("DistanceX", 1, 1, 1, 2, Q("10 mm")))
sketch13.addConstraint(Sketcher.Constraint("DistanceY", 0, 2, 0, 1, Q("1.8 mm")))
sketch13.addConstraint(Sketcher.Constraint("DistanceX", 0, 2, -1, 1, Q("4 mm")))
sketch13.addConstraint(Sketcher.Constraint("DistanceY", -1, 1, 0, 2, Q("47.0375 mm")))
pocket11 = doc.addObject("PartDesign::Pocket", "Pocket010")
body.addObject(pocket11)
pocket11.Profile = sketch13
pocket11.Length = 5

sketch14 = doc.addObject("Sketcher::SketchObject", "Sketch013")
body.addObject(sketch14)
sketch14.AttachmentSupport = (doc.XY_Plane, [""])
sketch14.MapMode = "FlatFace"
sketch14.AttachmentOffset = App.Placement(Vector(0, 0, 3), App.Rotation())
sketch14.addGeometry(Part.LineSegment(Vector(-4, 65.8, 0), Vector(-4, 64, 0)), False)
sketch14.addGeometry(Part.LineSegment(Vector(-4, 64, 0), Vector(6, 64, 0)), False)
sketch14.addGeometry(Part.LineSegment(Vector(6, 64, 0), Vector(6, 65.8, 0)), False)
sketch14.addGeometry(Part.LineSegment(Vector(6, 65.8, 0), Vector(-4, 65.8, 0)), False)
sketch14.addConstraint(Sketcher.Constraint("Coincident", 0, 2, 1, 1))
sketch14.addConstraint(Sketcher.Constraint("Coincident", 1, 2, 2, 1))
sketch14.addConstraint(Sketcher.Constraint("Coincident", 2, 2, 3, 1))
sketch14.addConstraint(Sketcher.Constraint("Coincident", 3, 2, 0, 1))
sketch14.addConstraint(Sketcher.Constraint("Vertical", 0))
sketch14.addConstraint(Sketcher.Constraint("Horizontal", 1))
sketch14.addConstraint(Sketcher.Constraint("Vertical", 2))
sketch14.addConstraint(Sketcher.Constraint("Horizontal", 3))
sketch14.addConstraint(Sketcher.Constraint("DistanceX", 1, 1, 1, 2, Q("10 mm")))
sketch14.addConstraint(Sketcher.Constraint("DistanceY", 0, 2, 0, 1, Q("1.8 mm")))
sketch14.addConstraint(Sketcher.Constraint("DistanceX", 0, 2, -1, 1, Q("4 mm")))
sketch14.addConstraint(Sketcher.Constraint("DistanceY", -1, 1, 0, 2, Q("64.025 mm")))
pocket12 = doc.addObject("PartDesign::Pocket", "Pocket011")
body.addObject(pocket12)
pocket12.Profile = sketch14
pocket12.Length = 5

sketch15 = doc.addObject("Sketcher::SketchObject", "Sketch014")
body.addObject(sketch15)
sketch15.AttachmentSupport = (doc.XY_Plane, [""])
sketch15.MapMode = "FlatFace"
sketch15.AttachmentOffset = App.Placement(Vector(0, 0, 3), App.Rotation())
sketch15.addGeometry(Part.LineSegment(Vector(-4, 82.8, 0), Vector(-4, 81, 0)), False)
sketch15.addGeometry(Part.LineSegment(Vector(-4, 81, 0), Vector(6, 81, 0)), False)
sketch15.addGeometry(Part.LineSegment(Vector(6, 81, 0), Vector(6, 82.8, 0)), False)
sketch15.addGeometry(Part.LineSegment(Vector(6, 82.8, 0), Vector(-4, 82.8, 0)), False)
sketch15.addConstraint(Sketcher.Constraint("Coincident", 0, 2, 1, 1))
sketch15.addConstraint(Sketcher.Constraint("Coincident", 1, 2, 2, 1))
sketch15.addConstraint(Sketcher.Constraint("Coincident", 2, 2, 3, 1))
sketch15.addConstraint(Sketcher.Constraint("Coincident", 3, 2, 0, 1))
sketch15.addConstraint(Sketcher.Constraint("Vertical", 0))
sketch15.addConstraint(Sketcher.Constraint("Horizontal", 1))
sketch15.addConstraint(Sketcher.Constraint("Vertical", 2))
sketch15.addConstraint(Sketcher.Constraint("Horizontal", 3))
sketch15.addConstraint(Sketcher.Constraint("DistanceX", 1, 1, 1, 2, Q("10 mm")))
sketch15.addConstraint(Sketcher.Constraint("DistanceY", 0, 2, 0, 1, Q("1.8 mm")))
sketch15.addConstraint(Sketcher.Constraint("DistanceX", 0, 2, -1, 1, Q("4 mm")))
sketch15.addConstraint(Sketcher.Constraint("DistanceY", -1, 1, 0, 2, Q("81.0125 mm")))
pocket13 = doc.addObject("PartDesign::Pocket", "Pocket012")
body.addObject(pocket13)
pocket13.Profile = sketch15
pocket13.Length = 5

sketch16 = doc.addObject("Sketcher::SketchObject", "Sketch015")
body.addObject(sketch16)
sketch16.AttachmentSupport = (doc.XY_Plane, [""])
sketch16.MapMode = "FlatFace"
sketch16.AttachmentOffset = App.Placement(Vector(0, 0, 3), App.Rotation())
sketch16.addGeometry(Part.LineSegment(Vector(-4, 99.8, 0), Vector(-4, 98, 0)), False)
sketch16.addGeometry(Part.LineSegment(Vector(-4, 98, 0), Vector(6, 98, 0)), False)
sketch16.addGeometry(Part.LineSegment(Vector(6, 98, 0), Vector(6, 99.8, 0)), False)
sketch16.addGeometry(Part.LineSegment(Vector(6, 99.8, 0), Vector(-4, 99.8, 0)), False)
sketch16.addConstraint(Sketcher.Constraint("Coincident", 0, 2, 1, 1))
sketch16.addConstraint(Sketcher.Constraint("Coincident", 1, 2, 2, 1))
sketch16.addConstraint(Sketcher.Constraint("Coincident", 2, 2, 3, 1))
sketch16.addConstraint(Sketcher.Constraint("Coincident", 3, 2, 0, 1))
sketch16.addConstraint(Sketcher.Constraint("Vertical", 0))
sketch16.addConstraint(Sketcher.Constraint("Horizontal", 1))
sketch16.addConstraint(Sketcher.Constraint("Vertical", 2))
sketch16.addConstraint(Sketcher.Constraint("Horizontal", 3))
sketch16.addConstraint(Sketcher.Constraint("DistanceX", 1, 1, 1, 2, Q("10 mm")))
sketch16.addConstraint(Sketcher.Constraint("DistanceY", 0, 2, 0, 1, Q("1.8 mm")))
sketch16.addConstraint(Sketcher.Constraint("DistanceX", 0, 2, -1, 1, Q("4 mm")))
sketch16.addConstraint(Sketcher.Constraint("DistanceY", -1, 1, 0, 2, Q("98 mm")))
pocket14 = doc.addObject("PartDesign::Pocket", "Pocket013")
body.addObject(pocket14)
pocket14.Profile = sketch16
pocket14.Length = 5
doc.recompute()

linearpattern3 = doc.addObject("PartDesign::LinearPattern", "LinearPattern002")
body.addObject(linearpattern3)
linearpattern3.Originals = [pocket6, pocket7, pocket8, pocket9, pocket10, pocket11, pocket12, pocket13, pocket14]
linearpattern3.Direction = (doc.X_Axis, [""])
linearpattern3.Mode = "offset"
linearpattern3.Offset = 77
linearpattern3.Occurrences = 2
body.Tip = linearpattern3

sketch17 = doc.addObject("Sketcher::SketchObject", "Sketch016")
body.addObject(sketch17)
sketch17.AttachmentSupport = (doc.XZ_Plane, [""])
sketch17.MapMode = "FlatFace"
sketch17.AttachmentOffset = App.Placement(Vector(0, 0, 58), App.Rotation())
sketch17.addGeometry(Part.Circle(Vector(74.5, 7, 0), Vector(0, 0, 1), 2.5), False)
sketch17.addConstraint(Sketcher.Constraint("Diameter", 0, Q("5 mm")))
sketch17.addConstraint(Sketcher.Constraint("DistanceY", -1, 1, 0, 3, Q("7 mm")))
sketch17.addConstraint(Sketcher.Constraint("DistanceX", -1, 1, 0, 3, Q("74.5 mm")))
pocket15 = doc.addObject("PartDesign::Pocket", "Pocket014")
body.addObject(pocket15)
pocket15.Profile = sketch17
pocket15.Length = 5

sketch18 = doc.addObject("Sketcher::SketchObject", "Sketch017")
body.addObject(sketch18)
sketch18.AttachmentSupport = (doc.YZ_Plane, [""])
sketch18.MapMode = "FlatFace"
sketch18.AttachmentOffset = App.Placement(Vector(0, 0, -58), App.Rotation())
sketch18.addGeometry(Part.Circle(Vector(73.5, 8.5, 0), Vector(0, 0, 1), 1.5), False)
sketch18.addConstraint(Sketcher.Constraint("Diameter", 0, Q("3 mm")))
sketch18.addConstraint(Sketcher.Constraint("DistanceX", -1, 1, 0, 3, Q("73.5 mm")))
sketch18.addConstraint(Sketcher.Constraint("DistanceY", -1, 1, 0, 3, Q("8.5 mm")))
pocket16 = doc.addObject("PartDesign::Pocket", "Pocket015")
body.addObject(pocket16)
pocket16.Profile = sketch18
pocket16.Length = 5
pocket16.Reversed = True
doc.recompute()

chamfer = doc.addObject("PartDesign::Chamfer", "Chamfer")
body.addObject(chamfer)
chamfer.Base = (pocket16, edges_at(pocket16, [(-82, -55.5, 13), (-55.5, -82, 13)]))
chamfer.Size = 8
body2 = doc.addObject("PartDesign::Body", "Body001")
doc.recompute()

mirroring = doc.addObject("Part::Mirroring", "Mirroring")
mirroring.Source = body
mirroring.Base = Vector(82, 0, 0)
mirroring.Normal = Vector(1, 0, 0)
body2.BaseFeature = mirroring
doc.recompute()
body.Visibility = False
mirroring.Visibility = False

doc.recompute()
